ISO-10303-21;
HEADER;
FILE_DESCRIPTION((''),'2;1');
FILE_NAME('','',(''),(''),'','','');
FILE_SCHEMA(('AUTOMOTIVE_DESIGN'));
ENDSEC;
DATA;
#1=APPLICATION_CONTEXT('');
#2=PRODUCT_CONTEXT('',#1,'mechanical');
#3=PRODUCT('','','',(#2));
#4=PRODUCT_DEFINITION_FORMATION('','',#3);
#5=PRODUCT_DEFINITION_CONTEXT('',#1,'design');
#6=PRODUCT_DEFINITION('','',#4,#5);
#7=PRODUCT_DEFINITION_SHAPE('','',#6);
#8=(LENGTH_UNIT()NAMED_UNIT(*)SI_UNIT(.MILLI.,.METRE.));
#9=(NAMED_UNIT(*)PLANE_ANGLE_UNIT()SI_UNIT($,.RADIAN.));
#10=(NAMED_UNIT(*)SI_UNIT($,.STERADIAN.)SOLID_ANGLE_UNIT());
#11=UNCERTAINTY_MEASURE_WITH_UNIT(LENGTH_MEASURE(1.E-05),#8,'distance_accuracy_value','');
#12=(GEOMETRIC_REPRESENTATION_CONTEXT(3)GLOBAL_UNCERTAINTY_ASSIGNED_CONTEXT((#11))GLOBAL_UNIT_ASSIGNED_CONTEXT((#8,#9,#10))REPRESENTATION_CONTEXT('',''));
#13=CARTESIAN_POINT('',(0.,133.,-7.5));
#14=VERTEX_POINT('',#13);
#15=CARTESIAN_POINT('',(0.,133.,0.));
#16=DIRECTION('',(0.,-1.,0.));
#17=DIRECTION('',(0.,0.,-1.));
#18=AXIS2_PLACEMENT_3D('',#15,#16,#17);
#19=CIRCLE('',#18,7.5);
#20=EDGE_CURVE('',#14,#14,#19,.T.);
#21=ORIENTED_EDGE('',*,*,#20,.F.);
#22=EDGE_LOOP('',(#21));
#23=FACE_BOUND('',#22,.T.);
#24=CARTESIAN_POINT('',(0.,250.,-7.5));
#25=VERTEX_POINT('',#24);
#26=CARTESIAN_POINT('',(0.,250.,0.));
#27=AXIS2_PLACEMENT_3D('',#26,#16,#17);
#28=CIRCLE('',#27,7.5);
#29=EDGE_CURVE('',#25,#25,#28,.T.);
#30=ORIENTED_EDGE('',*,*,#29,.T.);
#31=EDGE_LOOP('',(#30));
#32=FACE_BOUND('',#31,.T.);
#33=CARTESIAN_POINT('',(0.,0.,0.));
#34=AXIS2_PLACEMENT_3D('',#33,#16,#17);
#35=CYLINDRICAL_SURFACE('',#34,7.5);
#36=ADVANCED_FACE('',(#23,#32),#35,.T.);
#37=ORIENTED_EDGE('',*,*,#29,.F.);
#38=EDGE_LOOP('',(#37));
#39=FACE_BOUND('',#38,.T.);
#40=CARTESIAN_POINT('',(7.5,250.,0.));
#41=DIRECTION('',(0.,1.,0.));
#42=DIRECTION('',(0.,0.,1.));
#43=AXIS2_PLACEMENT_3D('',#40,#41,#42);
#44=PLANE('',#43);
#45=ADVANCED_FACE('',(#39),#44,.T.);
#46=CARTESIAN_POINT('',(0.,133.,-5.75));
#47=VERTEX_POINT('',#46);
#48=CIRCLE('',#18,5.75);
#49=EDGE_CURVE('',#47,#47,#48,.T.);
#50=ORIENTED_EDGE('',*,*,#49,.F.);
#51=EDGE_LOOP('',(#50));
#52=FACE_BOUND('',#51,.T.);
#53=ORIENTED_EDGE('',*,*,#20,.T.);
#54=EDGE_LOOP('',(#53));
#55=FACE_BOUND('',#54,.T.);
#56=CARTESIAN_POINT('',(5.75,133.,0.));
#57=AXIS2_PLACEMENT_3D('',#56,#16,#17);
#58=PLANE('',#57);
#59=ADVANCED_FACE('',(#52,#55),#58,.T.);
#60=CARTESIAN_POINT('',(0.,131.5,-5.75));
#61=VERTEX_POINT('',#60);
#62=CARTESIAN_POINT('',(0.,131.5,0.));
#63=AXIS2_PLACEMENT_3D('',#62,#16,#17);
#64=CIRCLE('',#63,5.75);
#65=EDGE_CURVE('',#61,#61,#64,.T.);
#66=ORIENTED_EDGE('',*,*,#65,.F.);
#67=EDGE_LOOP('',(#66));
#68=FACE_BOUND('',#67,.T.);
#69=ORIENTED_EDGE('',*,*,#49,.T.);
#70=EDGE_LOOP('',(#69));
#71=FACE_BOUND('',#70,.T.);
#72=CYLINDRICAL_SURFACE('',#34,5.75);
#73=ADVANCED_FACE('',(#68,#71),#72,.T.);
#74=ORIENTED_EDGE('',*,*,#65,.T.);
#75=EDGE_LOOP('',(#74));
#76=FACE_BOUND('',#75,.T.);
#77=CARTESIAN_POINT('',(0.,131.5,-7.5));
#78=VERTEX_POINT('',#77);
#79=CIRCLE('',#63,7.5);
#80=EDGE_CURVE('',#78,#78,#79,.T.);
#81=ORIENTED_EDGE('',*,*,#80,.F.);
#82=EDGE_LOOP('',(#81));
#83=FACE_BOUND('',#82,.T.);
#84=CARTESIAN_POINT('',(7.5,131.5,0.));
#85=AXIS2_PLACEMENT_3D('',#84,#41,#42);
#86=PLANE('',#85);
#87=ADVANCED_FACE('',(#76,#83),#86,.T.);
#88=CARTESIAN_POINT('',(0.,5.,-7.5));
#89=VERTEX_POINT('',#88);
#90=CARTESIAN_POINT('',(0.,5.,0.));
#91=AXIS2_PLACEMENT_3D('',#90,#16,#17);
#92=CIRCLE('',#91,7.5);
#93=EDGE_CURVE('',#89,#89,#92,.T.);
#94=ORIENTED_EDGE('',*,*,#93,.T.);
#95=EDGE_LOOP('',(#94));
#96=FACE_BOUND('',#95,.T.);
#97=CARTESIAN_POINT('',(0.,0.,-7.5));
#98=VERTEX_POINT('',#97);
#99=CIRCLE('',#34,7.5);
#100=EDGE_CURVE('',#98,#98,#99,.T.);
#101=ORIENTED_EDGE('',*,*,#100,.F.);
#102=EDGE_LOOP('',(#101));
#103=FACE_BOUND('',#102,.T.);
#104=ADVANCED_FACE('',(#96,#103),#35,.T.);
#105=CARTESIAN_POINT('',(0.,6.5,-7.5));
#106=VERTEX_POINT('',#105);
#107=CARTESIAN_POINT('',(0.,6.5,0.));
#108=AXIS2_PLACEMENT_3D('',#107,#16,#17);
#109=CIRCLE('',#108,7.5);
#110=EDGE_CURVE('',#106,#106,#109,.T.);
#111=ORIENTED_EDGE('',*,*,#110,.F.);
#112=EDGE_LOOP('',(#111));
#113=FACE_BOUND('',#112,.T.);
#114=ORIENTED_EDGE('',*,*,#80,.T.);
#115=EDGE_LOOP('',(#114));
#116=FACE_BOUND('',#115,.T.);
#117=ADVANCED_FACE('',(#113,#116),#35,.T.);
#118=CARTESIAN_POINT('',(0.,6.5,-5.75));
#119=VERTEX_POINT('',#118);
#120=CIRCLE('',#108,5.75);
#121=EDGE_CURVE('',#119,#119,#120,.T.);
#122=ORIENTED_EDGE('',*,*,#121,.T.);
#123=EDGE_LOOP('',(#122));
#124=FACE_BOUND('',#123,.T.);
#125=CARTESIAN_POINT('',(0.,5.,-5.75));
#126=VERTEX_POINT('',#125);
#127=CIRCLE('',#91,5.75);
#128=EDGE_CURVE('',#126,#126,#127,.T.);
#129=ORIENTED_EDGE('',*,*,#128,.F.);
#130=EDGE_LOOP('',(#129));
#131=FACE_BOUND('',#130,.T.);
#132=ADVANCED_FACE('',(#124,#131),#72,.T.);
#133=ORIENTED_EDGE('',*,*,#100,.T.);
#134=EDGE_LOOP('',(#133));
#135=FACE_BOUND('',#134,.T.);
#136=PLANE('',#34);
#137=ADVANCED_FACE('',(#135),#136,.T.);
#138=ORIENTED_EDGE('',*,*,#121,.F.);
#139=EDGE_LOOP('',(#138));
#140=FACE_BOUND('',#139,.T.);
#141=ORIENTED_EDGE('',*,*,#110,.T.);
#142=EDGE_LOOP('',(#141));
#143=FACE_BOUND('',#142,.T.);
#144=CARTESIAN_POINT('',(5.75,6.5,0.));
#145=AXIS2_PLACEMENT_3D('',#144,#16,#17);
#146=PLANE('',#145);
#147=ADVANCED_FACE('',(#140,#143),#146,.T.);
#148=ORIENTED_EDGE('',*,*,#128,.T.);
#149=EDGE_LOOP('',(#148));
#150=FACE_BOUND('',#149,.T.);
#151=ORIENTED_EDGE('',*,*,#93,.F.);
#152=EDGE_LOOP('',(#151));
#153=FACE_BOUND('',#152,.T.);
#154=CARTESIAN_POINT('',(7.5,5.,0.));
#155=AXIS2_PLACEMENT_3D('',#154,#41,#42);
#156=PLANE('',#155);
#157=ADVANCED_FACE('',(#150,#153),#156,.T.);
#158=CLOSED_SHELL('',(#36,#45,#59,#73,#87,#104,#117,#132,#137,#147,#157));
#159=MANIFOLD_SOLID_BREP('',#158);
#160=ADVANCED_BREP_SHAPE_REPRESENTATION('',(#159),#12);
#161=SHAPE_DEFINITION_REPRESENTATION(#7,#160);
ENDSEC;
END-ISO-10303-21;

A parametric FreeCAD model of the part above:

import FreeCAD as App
import Part
import Sketcher


def add_polygon(sketch, points):
    """Adds a closed chain of lines whose ends are joined by coincident constraints."""
    first, n = sketch.GeometryCount, len(points)
    for a, b in zip(points, points[1:] + points[:1]):
        sketch.addGeometry(Part.LineSegment(App.Vector(*a, 0), App.Vector(*b, 0)), False)
    for i in range(n):
        sketch.addConstraint(Sketcher.Constraint("Coincident", first + i, 2, first + (i + 1) % n, 1))

doc = App.newDocument("Part")
body = doc.addObject("PartDesign::Body", "Body")

# Sketch on XY plane
sketch1 = body.newObject("Sketcher::SketchObject", "Sketch")
sketch1.AttachmentSupport = (doc.getObject("XY_Plane"), [""])
sketch1.MapMode = "FlatFace"
add_polygon(sketch1, [(0, 250), (0, 0), (7.5, 0), (7.5, 5), (5.8, 5), (5.8, 6.5), (7.5, 6.5), (7.5, 131.5), (5.8, 131.5), (5.8, 133), (7.5, 133), (7.5, 250)])  # lines 0-11
sketch1.addConstraint([
    Sketcher.Constraint("Vertical", 0),
    Sketcher.Constraint("Horizontal", 1),
    Sketcher.Constraint("Vertical", 2),
    Sketcher.Constraint("Horizontal", 3),
    Sketcher.Constraint("Vertical", 4),
    Sketcher.Constraint("Horizontal", 5),
    Sketcher.Constraint("Vertical", 6),
    Sketcher.Constraint("Horizontal", 7),
    Sketcher.Constraint("Vertical", 8),
    Sketcher.Constraint("Horizontal", 9),
    Sketcher.Constraint("Vertical", 10),
    Sketcher.Constraint("Horizontal", 11),
    Sketcher.Constraint("Coincident", 0, 2, -1, 1),
    Sketcher.Constraint("Vertical", 2, 2, 5, 2),
    Sketcher.Constraint("Vertical", 4, 2, 7, 2),
    Sketcher.Constraint("Vertical", 6, 2, 9, 2),
    Sketcher.Constraint("Equal", 4, 8),
    Sketcher.Constraint("DistanceY", 0, 2, 0, 1, 250.0),
    Sketcher.Constraint("DistanceY", 2, 1, 2, 2, 5.0),
    Sketcher.Constraint("DistanceY", 6, 1, 6, 2, 125.0),
    Sketcher.Constraint("DistanceY", 10, 1, 10, 2, 117.0),
    Sketcher.Constraint("DistanceX", 1, 1, 1, 2, 7.5),
    Sketcher.Constraint("DistanceX", 3, 2, 3, 1, 1.75),
])
revolution = body.newObject("PartDesign::Revolution", "Revolution")
revolution.Profile = sketch1
revolution.ReferenceAxis = (sketch1, ["V_Axis"])
revolution.Angle = 360

doc.recompute()
